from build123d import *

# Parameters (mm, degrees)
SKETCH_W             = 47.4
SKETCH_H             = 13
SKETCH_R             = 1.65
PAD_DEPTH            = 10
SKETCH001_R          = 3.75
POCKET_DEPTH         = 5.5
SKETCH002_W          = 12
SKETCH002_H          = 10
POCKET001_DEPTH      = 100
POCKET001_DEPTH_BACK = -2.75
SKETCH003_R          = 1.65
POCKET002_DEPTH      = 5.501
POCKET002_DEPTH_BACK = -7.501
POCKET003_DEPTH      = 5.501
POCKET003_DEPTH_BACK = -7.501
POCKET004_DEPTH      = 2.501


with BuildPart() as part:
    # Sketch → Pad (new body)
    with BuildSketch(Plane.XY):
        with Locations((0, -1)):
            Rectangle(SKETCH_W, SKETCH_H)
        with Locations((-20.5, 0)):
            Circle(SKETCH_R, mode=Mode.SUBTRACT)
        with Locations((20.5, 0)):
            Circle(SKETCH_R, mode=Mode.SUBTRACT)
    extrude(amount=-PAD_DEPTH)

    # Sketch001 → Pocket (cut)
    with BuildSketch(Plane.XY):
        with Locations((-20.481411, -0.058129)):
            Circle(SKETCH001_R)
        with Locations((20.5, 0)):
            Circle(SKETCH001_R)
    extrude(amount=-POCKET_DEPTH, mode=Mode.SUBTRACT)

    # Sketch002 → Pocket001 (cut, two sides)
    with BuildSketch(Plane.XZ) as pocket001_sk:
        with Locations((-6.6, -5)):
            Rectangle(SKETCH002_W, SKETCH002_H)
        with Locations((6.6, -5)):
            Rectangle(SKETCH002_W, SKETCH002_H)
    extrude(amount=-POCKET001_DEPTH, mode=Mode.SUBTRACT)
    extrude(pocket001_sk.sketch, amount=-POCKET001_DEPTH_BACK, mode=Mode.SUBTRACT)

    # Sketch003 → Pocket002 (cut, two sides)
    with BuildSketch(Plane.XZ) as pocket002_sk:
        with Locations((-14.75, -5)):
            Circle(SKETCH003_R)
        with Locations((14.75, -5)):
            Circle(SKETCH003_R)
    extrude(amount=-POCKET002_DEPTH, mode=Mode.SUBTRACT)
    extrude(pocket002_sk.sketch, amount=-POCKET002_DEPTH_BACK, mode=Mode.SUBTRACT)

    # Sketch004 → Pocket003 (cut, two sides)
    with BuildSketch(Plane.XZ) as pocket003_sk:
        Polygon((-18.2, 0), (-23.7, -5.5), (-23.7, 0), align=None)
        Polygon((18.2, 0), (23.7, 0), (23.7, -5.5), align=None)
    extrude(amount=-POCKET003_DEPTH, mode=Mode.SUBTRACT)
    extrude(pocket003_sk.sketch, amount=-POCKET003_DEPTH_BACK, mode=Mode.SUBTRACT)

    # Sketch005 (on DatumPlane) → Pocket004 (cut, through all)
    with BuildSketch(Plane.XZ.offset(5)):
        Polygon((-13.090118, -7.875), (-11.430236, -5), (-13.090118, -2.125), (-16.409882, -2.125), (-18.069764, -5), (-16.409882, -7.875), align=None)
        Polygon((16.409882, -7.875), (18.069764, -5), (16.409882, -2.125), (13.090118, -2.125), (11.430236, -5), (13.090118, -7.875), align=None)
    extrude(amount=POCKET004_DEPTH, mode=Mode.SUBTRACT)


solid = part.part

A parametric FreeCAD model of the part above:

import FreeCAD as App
import Part
import Sketcher
Q = App.Units.Quantity


def add_polygon(sketch, points):
    """Adds a closed chain of lines whose ends are joined by coincident constraints."""
    first, n = sketch.GeometryCount, len(points)
    for a, b in zip(points, points[1:] + points[:1]):
        sketch.addGeometry(Part.LineSegment(App.Vector(*a, 0), App.Vector(*b, 0)), False)
    for i in range(n):
        sketch.addConstraint(Sketcher.Constraint("Coincident", first + i, 2, first + (i + 1) % n, 1))

doc = App.newDocument("Part")
body = doc.addObject("PartDesign::Body", "Body")

sketch1 = body.newObject("Sketcher::SketchObject", "Sketch")
sketch1.AttachmentSupport = (doc.getObject("XY_Plane"), [""])
sketch1.MapMode = "FlatFace"
add_polygon(sketch1, [(-23.7, 5.5), (-23.7, -7.5), (23.7, -7.5), (23.7, 5.5)])
sketch1.addGeometry(Part.Circle(App.Vector(-20.5, 0, 0), App.Vector(0, 0, 1), 1.6), False)
sketch1.addGeometry(Part.Circle(App.Vector(20.5, 0, 0), App.Vector(0, 0, 1), 1.6), False)
sketch1.addConstraint([
    Sketcher.Constraint("Vertical", 0),
    Sketcher.Constraint("Horizontal", 1),
    Sketcher.Constraint("Vertical", 2),
    Sketcher.Constraint("Horizontal", 3),
    Sketcher.Constraint("Equal", 4, 5),
    Sketcher.Constraint("Symmetric", 4, 3, 5, 3, -1, 1),
    Sketcher.Constraint("PointOnObject", 4, 3, -1),
    Sketcher.Constraint("Diameter", 4, Q("3.3 mm")),
    Sketcher.Constraint("DistanceY", 0, 2, 0, 1, Q("13 mm")),
    Sketcher.Constraint("DistanceX", 1, 1, 1, 2, Q("47.4 mm")),
    Sketcher.Constraint("DistanceX", 4, 3, 5, 3, Q("41 mm")),
    Sketcher.Constraint("DistanceX", 0, 2, -1, 1, Q("23.7 mm")),
    Sketcher.Constraint("DistanceY", 0, 2, -1, 1, Q("7.5 mm")),
])
pad1 = body.newObject("PartDesign::Pad", "Pad")
pad1.Profile = sketch1
pad1.Length = 10
pad1.Reversed = True

sketch2 = body.newObject("Sketcher::SketchObject", "Sketch001")
sketch2.AttachmentSupport = (doc.getObject("XY_Plane"), [""])
sketch2.MapMode = "FlatFace"
sketch2.addGeometry([
    Part.Circle(App.Vector(-20.5, -0.1, 0), App.Vector(0, 0, 1), 3.8),
    Part.Circle(App.Vector(20.5, 0, 0), App.Vector(0, 0, 1), 3.8),
], False)
sketch2.addConstraint([
    Sketcher.Constraint("Equal", 0, 1),
    Sketcher.Constraint("PointOnObject", 1, 3, -1),
    Sketcher.Constraint("Diameter", 0, Q("7.5 mm")),
    Sketcher.Constraint("DistanceX", -1, 1, 1, 3, Q("20.5 mm")),
    Sketcher.Constraint("DistanceX", 0, 3, -1, 1, Q("20.481411 mm")),
    Sketcher.Constraint("DistanceY", 0, 3, -1, 1, Q("0.058129 mm")),
])
pocket1 = body.newObject("PartDesign::Pocket", "Pocket")
pocket1.Profile = sketch2
pocket1.Length = 5.5

sketch3 = body.newObject("Sketcher::SketchObject", "Sketch002")
sketch3.AttachmentSupport = (doc.getObject("XZ_Plane"), [""])
sketch3.MapMode = "FlatFace"
add_polygon(sketch3, [(-13, 0), (-13, -10), (-1, -10), (-1, 0)])
add_polygon(sketch3, [(1, 0), (1, -10), (13, -10), (13, 0)])
sketch3.addConstraint([
    Sketcher.Constraint("Vertical", 0),
    Sketcher.Constraint("Horizontal", 1),
    Sketcher.Constraint("Vertical", 2),
    Sketcher.Constraint("Horizontal", 3),
    Sketcher.Constraint("Vertical", 4),
    Sketcher.Constraint("Horizontal", 5),
    Sketcher.Constraint("Vertical", 6),
    Sketcher.Constraint("Horizontal", 7),
    Sketcher.Constraint("Symmetric", 3, 2, 6, 2, -1, 1),
    Sketcher.Constraint("Symmetric", 1, 2, 4, 2, -2),
    Sketcher.Constraint("PointOnObject", 2, 2, -1),
    Sketcher.Constraint("DistanceX", 1, 1, 1, 2, Q("12 mm")),
    Sketcher.Constraint("DistanceY", 0, 2, 0, 1, Q("10 mm")),
    Sketcher.Constraint("DistanceX", 0, 2, -1, 1, Q("12.6 mm")),
])
pocket2 = body.newObject("PartDesign::Pocket", "Pocket001")
pocket2.Profile = sketch3
pocket2.Type = "TwoLengths"
pocket2.Length = 100
pocket2.Length2 = 2.75

sketch4 = body.newObject("Sketcher::SketchObject", "Sketch003")
sketch4.AttachmentSupport = (doc.getObject("XZ_Plane"), [""])
sketch4.MapMode = "FlatFace"
sketch4.addGeometry([
    Part.Circle(App.Vector(-14.8, -5, 0), App.Vector(0, 0, 1), 1.6),
    Part.Circle(App.Vector(14.8, -5, 0), App.Vector(0, 0, 1), 1.6),
], False)
sketch4.addConstraint([
    Sketcher.Constraint("Equal", 0, 1),
    Sketcher.Constraint("Symmetric", 0, 3, 1, 3, -2),
    Sketcher.Constraint("Diameter", 0, Q("3.3 mm")),
    Sketcher.Constraint("DistanceY", 0, 3, -1, 1, Q("5 mm")),
    Sketcher.Constraint("DistanceX", 0, 3, 1, 3, Q("29.5 mm")),
])
pocket3 = body.newObject("PartDesign::Pocket", "Pocket002")
pocket3.Profile = sketch4
pocket3.Type = "ThroughAll"
pocket3.Midplane = True

sketch5 = body.newObject("Sketcher::SketchObject", "Sketch004")
sketch5.AttachmentSupport = (doc.getObject("XZ_Plane"), [""])
sketch5.MapMode = "FlatFace"
add_polygon(sketch5, [(-24, -6), (-18, 0), (-24, 0)])
add_polygon(sketch5, [(24, 0), (18, 0), (24, -6)])
sketch5.addConstraint([
    Sketcher.Constraint("Horizontal", 1),
    Sketcher.Constraint("Vertical", 2),
    Sketcher.Constraint("Horizontal", 3),
    Sketcher.Constraint("Vertical", 5),
    Sketcher.Constraint("Symmetric", 0, 2, 3, 2, -1, 1),
    Sketcher.Constraint("Symmetric", 2, 2, 4, 2, -2),
    Sketcher.Constraint("PointOnObject", 0, 2, -1),
    Sketcher.Constraint("Perpendicular", 0, 4),
    Sketcher.Constraint("DistanceX", 1, 2, 1, 1, Q("5.5 mm")),
    Sketcher.Constraint("DistanceX", 0, 2, -1, 1, Q("18.2 mm")),
])
pocket4 = body.newObject("PartDesign::Pocket", "Pocket003")
pocket4.Profile = sketch5
pocket4.Type = "ThroughAll"
pocket4.Midplane = True

sketch6 = body.newObject("Sketcher::SketchObject", "Sketch005")
sketch6.AttachmentSupport = (doc.getObject("XZ_Plane"), [""])
sketch6.MapMode = "FlatFace"
sketch6.AttachmentOffset = App.Placement(App.Vector(0, 0, 5), App.Rotation())
add_polygon(sketch6, [(-13.1, -7.9), (-11.4, -5), (-13.1, -2.1), (-16.4, -2.1), (-18.1, -5), (-16.4, -7.9)])
add_polygon(sketch6, [(16.4, -7.9), (18.1, -5), (16.4, -2.1), (13.1, -2.1), (11.4, -5), (13.1, -7.9)])
sketch6.addConstraint([
    Sketcher.Constraint("Horizontal", 2),
    Sketcher.Constraint("Horizontal", 5),
    Sketcher.Constraint("Horizontal", 8),
    Sketcher.Constraint("Horizontal", 11),
    Sketcher.Constraint("Symmetric", 3, 2, 6, 2, -2),
    Sketcher.Constraint("Symmetric", 2, 2, 7, 2, -2),
    Sketcher.Constraint("Symmetric", 0, 2, 9, 2, -2),
    Sketcher.Constraint("Symmetric", 5, 2, 10, 2, -2),
    Sketcher.Constraint("Parallel", 0, 3),
    Sketcher.Constraint("Parallel", 1, 4),
    Sketcher.Constraint("Parallel", 3, 6),
    Sketcher.Constraint("Parallel", 4, 7),
    Sketcher.Constraint("Parallel", 6, 9),
    Sketcher.Constraint("Horizontal", 0, 2, 3, 2),
    Sketcher.Constraint("Vertical", 2, 2, 4, 2),
    Sketcher.Constraint("Angle", 0, Q("60 deg")),
    Sketcher.Constraint("DistanceY", 0, 2, -1, 1, Q("5 mm")),
    Sketcher.Constraint("DistanceX", 0, 2, 6, 2, Q("29.5 mm")),
    Sketcher.Constraint("DistanceY", 4, 2, 2, 2, Q("5.75 mm")),
    Sketcher.Constraint("DistanceX", 2, 2, 2, 1, Q("3.319764 mm")),
])
pocket5 = body.newObject("PartDesign::Pocket", "Pocket004")
pocket5.Profile = sketch6
pocket5.Type = "ThroughAll"
pocket5.Reversed = True

doc.recompute()
